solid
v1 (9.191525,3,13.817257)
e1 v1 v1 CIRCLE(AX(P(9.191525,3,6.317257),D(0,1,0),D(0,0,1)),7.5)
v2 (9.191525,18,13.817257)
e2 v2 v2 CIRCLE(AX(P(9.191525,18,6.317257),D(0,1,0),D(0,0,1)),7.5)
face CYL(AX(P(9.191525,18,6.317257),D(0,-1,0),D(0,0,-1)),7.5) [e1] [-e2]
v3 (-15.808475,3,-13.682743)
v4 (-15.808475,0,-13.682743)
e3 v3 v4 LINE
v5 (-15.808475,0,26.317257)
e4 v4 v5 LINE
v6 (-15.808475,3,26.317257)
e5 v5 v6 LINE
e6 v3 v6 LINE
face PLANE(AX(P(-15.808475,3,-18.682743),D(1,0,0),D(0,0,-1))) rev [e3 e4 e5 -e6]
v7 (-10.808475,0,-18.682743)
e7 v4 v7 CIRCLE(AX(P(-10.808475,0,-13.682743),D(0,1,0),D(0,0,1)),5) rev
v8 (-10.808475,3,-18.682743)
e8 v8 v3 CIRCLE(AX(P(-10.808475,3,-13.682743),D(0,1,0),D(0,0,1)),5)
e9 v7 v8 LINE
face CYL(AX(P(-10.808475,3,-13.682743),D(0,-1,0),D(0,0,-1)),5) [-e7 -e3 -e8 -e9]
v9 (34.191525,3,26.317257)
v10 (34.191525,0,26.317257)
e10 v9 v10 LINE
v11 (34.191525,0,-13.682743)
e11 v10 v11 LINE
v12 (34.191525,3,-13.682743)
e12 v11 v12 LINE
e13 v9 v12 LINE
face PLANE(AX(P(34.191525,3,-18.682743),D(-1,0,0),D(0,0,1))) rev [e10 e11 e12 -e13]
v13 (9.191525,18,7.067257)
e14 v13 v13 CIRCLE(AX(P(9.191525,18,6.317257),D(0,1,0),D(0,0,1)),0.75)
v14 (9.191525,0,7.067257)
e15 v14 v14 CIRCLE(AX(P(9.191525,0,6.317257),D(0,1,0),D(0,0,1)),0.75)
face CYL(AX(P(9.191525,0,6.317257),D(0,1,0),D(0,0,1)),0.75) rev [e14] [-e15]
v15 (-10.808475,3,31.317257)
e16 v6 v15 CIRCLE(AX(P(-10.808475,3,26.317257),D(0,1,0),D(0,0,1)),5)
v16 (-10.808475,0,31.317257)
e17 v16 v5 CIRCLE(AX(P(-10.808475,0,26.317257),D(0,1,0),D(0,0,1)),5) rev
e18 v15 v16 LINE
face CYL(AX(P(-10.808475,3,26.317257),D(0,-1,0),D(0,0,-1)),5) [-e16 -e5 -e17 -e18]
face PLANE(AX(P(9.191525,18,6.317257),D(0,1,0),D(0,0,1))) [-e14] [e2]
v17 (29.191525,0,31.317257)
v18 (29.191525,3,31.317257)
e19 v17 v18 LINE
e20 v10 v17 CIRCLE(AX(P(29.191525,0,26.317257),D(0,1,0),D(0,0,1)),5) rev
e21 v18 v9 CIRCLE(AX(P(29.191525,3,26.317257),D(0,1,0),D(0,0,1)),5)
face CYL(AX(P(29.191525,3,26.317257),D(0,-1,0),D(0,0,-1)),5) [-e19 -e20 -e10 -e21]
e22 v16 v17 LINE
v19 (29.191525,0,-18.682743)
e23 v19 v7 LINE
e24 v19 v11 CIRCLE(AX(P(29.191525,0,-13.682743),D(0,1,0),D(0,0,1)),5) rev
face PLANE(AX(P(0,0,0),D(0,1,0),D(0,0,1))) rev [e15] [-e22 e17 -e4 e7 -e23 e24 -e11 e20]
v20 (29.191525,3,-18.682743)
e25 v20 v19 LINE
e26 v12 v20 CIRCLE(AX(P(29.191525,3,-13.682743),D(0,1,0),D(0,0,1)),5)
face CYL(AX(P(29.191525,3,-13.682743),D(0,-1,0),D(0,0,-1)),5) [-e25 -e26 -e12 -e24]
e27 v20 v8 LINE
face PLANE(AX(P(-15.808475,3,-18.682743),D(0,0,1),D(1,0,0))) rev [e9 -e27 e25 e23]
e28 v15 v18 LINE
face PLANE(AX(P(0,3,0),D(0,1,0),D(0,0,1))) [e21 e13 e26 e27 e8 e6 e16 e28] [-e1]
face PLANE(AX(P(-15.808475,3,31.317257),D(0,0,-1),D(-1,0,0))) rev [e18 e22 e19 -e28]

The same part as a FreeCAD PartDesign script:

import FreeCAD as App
import Part
import Sketcher

V = App.Vector
Q = App.Units.Quantity


def edges_at(feature, points):
    """Names of the edges that pass closest to the given points."""
    edges = feature.Shape.Edges
    near = lambda p: min(range(len(edges)), key=lambda i: edges[i].distToShape(Part.Vertex(*p))[0])
    return sorted({f"Edge{near(p) + 1}" for p in points})


def add_polygon(sketch, points):
    """Adds a closed chain of lines whose ends are joined by coincident constraints."""
    first, n = sketch.GeometryCount, len(points)
    for a, b in zip(points, points[1:] + points[:1]):
        sketch.addGeometry(Part.LineSegment(App.Vector(*a, 0), App.Vector(*b, 0)), False)
    for i in range(n):
        sketch.addConstraint(Sketcher.Constraint("Coincident", first + i, 2, first + (i + 1) % n, 1))

doc = App.newDocument("Part")
body = doc.addObject("PartDesign::Body", "Body")

# Sketch on XZ plane
sketch1 = doc.addObject("Sketcher::SketchObject", "Sketch")
body.addObject(sketch1)
sketch1.AttachmentSupport = (doc.XZ_Plane, [""])
sketch1.MapMode = "FlatFace"
add_polygon(sketch1, [(-16, -19), (-16, 31), (34, 31), (34, -19)])  # lines 0-3
sketch1.addConstraint(Sketcher.Constraint("Vertical", 0))
sketch1.addConstraint(Sketcher.Constraint("Horizontal", 1))
sketch1.addConstraint(Sketcher.Constraint("Vertical", 2))
sketch1.addConstraint(Sketcher.Constraint("Horizontal", 3))
sketch1.addConstraint(Sketcher.Constraint("Equal", 3, 0))
sketch1.addConstraint(Sketcher.Constraint("DistanceX", 1, 1, 1, 2, Q("50 mm")))
sketch1.addConstraint(Sketcher.Constraint("DistanceX", 0, 2, -1, 1, Q("15.808475 mm")))
sketch1.addConstraint(Sketcher.Constraint("DistanceY", -1, 1, 0, 2, Q("31.317257 mm")))
pad1 = doc.addObject("PartDesign::Pad", "Pad")
body.addObject(pad1)
pad1.Profile = sketch1
pad1.Length = 3
pad1.Reversed = True
doc.recompute()

fillet = doc.addObject("PartDesign::Fillet", "Fillet")
body.addObject(fillet)
fillet.Base = (pad1, edges_at(pad1, [
    (-15.808, 1.5, -18.683),
    (34.192, 1.5, -18.683),
    (34.192, 1.5, 31.317),
    (-15.808, 1.5, 31.317),
]))
fillet.Radius = 5

# Sketch on XZ plane
sketch2 = doc.addObject("Sketcher::SketchObject", "Sketch001")
body.addObject(sketch2)
sketch2.AttachmentSupport = (doc.XZ_Plane, [""])
sketch2.MapMode = "FlatFace"
sketch2.AttachmentOffset = App.Placement(V(0, 0, -3), App.Rotation())
sketch2.addGeometry(Part.Circle(V(9, 6, 0), V(0, 0, 1), 8), False)
sketch2.addConstraint(Sketcher.Constraint("Diameter", 0, Q("15 mm")))
sketch2.addConstraint(Sketcher.Constraint("DistanceX", -1, 1, 0, 3, Q("9.191525 mm")))
sketch2.addConstraint(Sketcher.Constraint("DistanceY", -1, 1, 0, 3, Q("6.317257 mm")))
pad2 = doc.addObject("PartDesign::Pad", "Pad001")
body.addObject(pad2)
pad2.Profile = sketch2
pad2.Length = 15
pad2.Reversed = True

# Sketch on XZ plane
sketch3 = doc.addObject("Sketcher::SketchObject", "Sketch002")
body.addObject(sketch3)
sketch3.AttachmentSupport = (doc.XZ_Plane, [""])
sketch3.MapMode = "FlatFace"
sketch3.AttachmentOffset = App.Placement(V(0, 0, -18), App.Rotation())
sketch3.addGeometry(Part.Circle(V(9.2, 6.3, 0), V(0, 0, 1), 0.8), False)
sketch3.addConstraint(Sketcher.Constraint("Diameter", 0, Q("1.5 mm")))
sketch3.addConstraint(Sketcher.Constraint("DistanceX", -1, 1, 0, 3, Q("9.191525 mm")))
sketch3.addConstraint(Sketcher.Constraint("DistanceY", -1, 1, 0, 3, Q("6.317257 mm")))
pocket1 = doc.addObject("PartDesign::Pocket", "Pocket")
body.addObject(pocket1)
pocket1.Profile = sketch3
pocket1.Type = "ThroughAll"
pocket1.Reversed = True

doc.recompute()
